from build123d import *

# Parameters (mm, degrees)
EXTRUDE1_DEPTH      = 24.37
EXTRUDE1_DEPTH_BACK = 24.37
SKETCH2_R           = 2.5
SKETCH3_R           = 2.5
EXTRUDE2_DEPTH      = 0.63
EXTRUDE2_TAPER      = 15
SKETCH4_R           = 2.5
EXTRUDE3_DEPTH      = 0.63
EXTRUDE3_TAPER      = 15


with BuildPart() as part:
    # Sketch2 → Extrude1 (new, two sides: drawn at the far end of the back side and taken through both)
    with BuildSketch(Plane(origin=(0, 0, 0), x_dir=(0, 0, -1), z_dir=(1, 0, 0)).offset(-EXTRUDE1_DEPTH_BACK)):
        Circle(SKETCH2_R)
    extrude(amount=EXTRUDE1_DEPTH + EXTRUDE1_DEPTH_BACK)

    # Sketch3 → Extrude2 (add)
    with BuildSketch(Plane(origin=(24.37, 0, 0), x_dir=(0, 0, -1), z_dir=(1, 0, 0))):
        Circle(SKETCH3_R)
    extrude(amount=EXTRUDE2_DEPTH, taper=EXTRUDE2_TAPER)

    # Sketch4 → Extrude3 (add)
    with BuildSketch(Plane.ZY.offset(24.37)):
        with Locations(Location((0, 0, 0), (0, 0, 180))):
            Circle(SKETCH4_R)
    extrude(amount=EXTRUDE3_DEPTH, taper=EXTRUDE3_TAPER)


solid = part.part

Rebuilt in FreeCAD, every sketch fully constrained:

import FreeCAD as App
import Part
import Sketcher

doc = App.newDocument("Part")
body = doc.addObject("PartDesign::Body", "Body")

# Sketch on YZ plane
sketch1 = body.newObject("Sketcher::SketchObject", "Sketch")
sketch1.AttachmentSupport = (doc.getObject("YZ_Plane"), [""])
sketch1.MapMode = "FlatFace"
sketch1.addGeometry(Part.Circle(App.Vector(0, 0, 0), App.Vector(0, 0, 1), 2.5), False)
sketch1.addConstraint([
    Sketcher.Constraint("Coincident", 0, 3, -1, 1),
    Sketcher.Constraint("Diameter", 0, 5.0),
])
pad1 = body.newObject("PartDesign::Pad", "Pad")
pad1.Profile = sketch1
pad1.Type = "TwoLengths"
pad1.Length = 24.37
pad1.Length2 = 24.37

# Sketch on YZ plane
sketch2 = body.newObject("Sketcher::SketchObject", "Sketch001")
sketch2.AttachmentSupport = (doc.getObject("YZ_Plane"), [""])
sketch2.MapMode = "FlatFace"
sketch2.AttachmentOffset = App.Placement(App.Vector(0, 0, 24.37), App.Rotation())
sketch2.addGeometry(Part.Circle(App.Vector(0, 0, 0), App.Vector(0, 0, 1), 2.5), False)
sketch2.addConstraint([
    Sketcher.Constraint("Coincident", 0, 3, -1, 1),
    Sketcher.Constraint("Diameter", 0, 5.0),
])
pad2 = body.newObject("PartDesign::Pad", "Pad001")
pad2.Profile = sketch2
pad2.Length = 0.63
pad2.TaperAngle = -15

# Sketch on YZ plane
sketch3 = body.newObject("Sketcher::SketchObject", "Sketch002")
sketch3.AttachmentSupport = (doc.getObject("YZ_Plane"), [""])
sketch3.MapMode = "FlatFace"
sketch3.AttachmentOffset = App.Placement(App.Vector(0, 0, -24.37), App.Rotation())
sketch3.addGeometry(Part.Circle(App.Vector(0, 0, 0), App.Vector(0, 0, 1), 2.5), False)
sketch3.addConstraint([
    Sketcher.Constraint("Coincident", 0, 3, -1, 1),
    Sketcher.Constraint("Diameter", 0, 5.0),
])
pad3 = body.newObject("PartDesign::Pad", "Pad002")
pad3.Profile = sketch3
pad3.Length = 0.63
pad3.Reversed = True
pad3.TaperAngle = -15

doc.recompute()
